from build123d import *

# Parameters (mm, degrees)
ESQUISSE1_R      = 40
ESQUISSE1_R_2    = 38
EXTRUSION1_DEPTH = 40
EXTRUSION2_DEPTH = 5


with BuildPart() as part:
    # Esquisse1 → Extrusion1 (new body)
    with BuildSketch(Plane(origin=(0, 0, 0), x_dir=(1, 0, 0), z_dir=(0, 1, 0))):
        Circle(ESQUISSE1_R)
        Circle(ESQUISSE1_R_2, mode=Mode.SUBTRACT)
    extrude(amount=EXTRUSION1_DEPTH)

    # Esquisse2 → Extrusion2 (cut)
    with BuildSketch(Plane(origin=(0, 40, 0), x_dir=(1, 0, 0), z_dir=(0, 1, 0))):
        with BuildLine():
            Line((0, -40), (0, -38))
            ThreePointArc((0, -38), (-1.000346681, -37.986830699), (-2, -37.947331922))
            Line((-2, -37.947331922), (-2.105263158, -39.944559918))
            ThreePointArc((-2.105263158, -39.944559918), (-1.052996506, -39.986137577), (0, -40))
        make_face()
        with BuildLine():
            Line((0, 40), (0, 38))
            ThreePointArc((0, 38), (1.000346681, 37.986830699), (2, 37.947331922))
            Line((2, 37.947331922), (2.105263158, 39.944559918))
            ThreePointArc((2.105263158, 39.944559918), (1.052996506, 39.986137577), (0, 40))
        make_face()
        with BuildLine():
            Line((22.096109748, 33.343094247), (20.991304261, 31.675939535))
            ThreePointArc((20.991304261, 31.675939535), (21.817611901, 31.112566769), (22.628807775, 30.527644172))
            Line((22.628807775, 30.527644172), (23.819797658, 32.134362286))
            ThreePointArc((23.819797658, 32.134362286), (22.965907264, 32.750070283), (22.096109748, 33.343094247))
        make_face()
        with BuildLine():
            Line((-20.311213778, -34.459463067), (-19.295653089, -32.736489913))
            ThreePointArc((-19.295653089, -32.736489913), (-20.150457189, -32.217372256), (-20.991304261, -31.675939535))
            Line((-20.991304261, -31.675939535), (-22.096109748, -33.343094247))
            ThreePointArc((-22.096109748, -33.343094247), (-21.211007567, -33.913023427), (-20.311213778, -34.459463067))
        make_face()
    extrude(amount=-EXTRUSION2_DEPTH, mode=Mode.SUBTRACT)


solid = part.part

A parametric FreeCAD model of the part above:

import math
import FreeCAD as App
import Part
import Sketcher

V = App.Vector
Q = App.Units.Quantity

doc = App.newDocument("Part")
params = doc.addObject("Spreadsheet::Sheet", "Params")
for row, (alias, value) in enumerate([
    ("sketch1_diameter", "80 mm"),
    ("sketch1_diameter2", "76 mm"),
    ("pad1_length", "40 mm"),
    ("sketch2_radius", "37.999999 mm"),
    ("sketch2_radius2", "40.000001 mm"),
    ("pocket1_length", "5 mm"),
], start=1):
    params.set(f"A{row}", alias)
    params.set(f"B{row}", "=" + value)
    params.setAlias(f"B{row}", alias)

body = doc.addObject("PartDesign::Body", "Body")

sketch1 = doc.addObject("Sketcher::SketchObject", "Sketch")
body.addObject(sketch1)
sketch1.AttachmentSupport = (doc.XZ_Plane, [""])
sketch1.MapMode = "FlatFace"
sketch1.addGeometry([
    Part.Circle(V(0, 0, 0), V(0, 0, 1), 40),
    Part.Circle(V(0, 0, 0), V(0, 0, 1), 38),
], False)
sketch1.addConstraint([
    Sketcher.Constraint("Coincident", 0, 3, -1, 1),
    Sketcher.Constraint("Coincident", 1, 3, -1, 1),
    Sketcher.Constraint("Diameter", 0, Q("80 mm")),
    Sketcher.Constraint("Diameter", 1, Q("76 mm")),
])
sketch1.setExpression("Constraints[2]", "Params.sketch1_diameter")
sketch1.setExpression("Constraints[3]", "Params.sketch1_diameter2")
pad1 = doc.addObject("PartDesign::Pad", "Pad")
body.addObject(pad1)
pad1.Profile = sketch1
pad1.setExpression("Length", "Params.pad1_length")
pad1.Reversed = True

sketch2 = doc.addObject("Sketcher::SketchObject", "Sketch001")
body.addObject(sketch2)
sketch2.AttachmentSupport = (doc.XZ_Plane, [""])
sketch2.MapMode = "FlatFace"
sketch2.AttachmentOffset = App.Placement(V(0, 0, -40), App.Rotation())
sketch2.addGeometry([
    Part.LineSegment(V(0, 40, 0), V(0, 38, 0)),
    Part.ArcOfCircle(Part.Circle(V(0, 0, 0), V(0, 0, 1), 38), math.radians(90), math.radians(93.02)),
    Part.LineSegment(V(-2, 37.9, 0), V(-2.1, 39.9, 0)),
    Part.ArcOfCircle(Part.Circle(V(0, 0, 0), V(0, 0, 1), 40), math.radians(90), math.radians(93.02)),
    Part.LineSegment(V(0, -40, 0), V(0, -38, 0)),
    Part.ArcOfCircle(Part.Circle(V(0, 0, 0), V(0, 0, 1), 38), math.radians(-90), math.radians(-86.98)),
    Part.LineSegment(V(2, -37.9, 0), V(2.1, -39.9, 0)),
    Part.ArcOfCircle(Part.Circle(V(0, 0, 0), V(0, 0, 1), 40), math.radians(-90), math.radians(-86.98)),
    Part.LineSegment(V(22.1, -33.3, 0), V(21, -31.7, 0)),
    Part.ArcOfCircle(Part.Circle(V(0, 0, 0), V(0, 0, 1), 38), math.radians(-56.47), math.radians(-53.45)),
    Part.LineSegment(V(22.6, -30.5, 0), V(23.8, -32.1, 0)),
    Part.ArcOfCircle(Part.Circle(V(0, 0, 0), V(0, 0, 1), 40), math.radians(-56.47), math.radians(-53.45)),
    Part.LineSegment(V(-20.3, 34.5, 0), V(-19.3, 32.7, 0)),
    Part.ArcOfCircle(Part.Circle(V(0, 0, 0), V(0, 0, 1), 38), math.radians(120.52), math.radians(123.53)),
    Part.LineSegment(V(-21, 31.7, 0), V(-22.1, 33.3, 0)),
    Part.ArcOfCircle(Part.Circle(V(0, 0, 0), V(0, 0, 1), 40), math.radians(120.52), math.radians(123.53)),
], False)
sketch2.addConstraint([
    Sketcher.Constraint("Coincident", 0, 2, 1, 1),
    Sketcher.Constraint("Coincident", 1, 2, 2, 1),
    Sketcher.Constraint("Coincident", 2, 2, 3, 2),
    Sketcher.Constraint("Coincident", 3, 1, 0, 1),
    Sketcher.Constraint("Coincident", 4, 2, 5, 1),
    Sketcher.Constraint("Coincident", 5, 2, 6, 1),
    Sketcher.Constraint("Coincident", 6, 2, 7, 2),
    Sketcher.Constraint("Coincident", 7, 1, 4, 1),
    Sketcher.Constraint("Coincident", 8, 2, 9, 1),
    Sketcher.Constraint("Coincident", 9, 2, 10, 1),
    Sketcher.Constraint("Coincident", 10, 2, 11, 2),
    Sketcher.Constraint("Coincident", 11, 1, 8, 1),
    Sketcher.Constraint("Coincident", 12, 2, 13, 1),
    Sketcher.Constraint("Coincident", 13, 2, 14, 1),
    Sketcher.Constraint("Coincident", 14, 2, 15, 2),
    Sketcher.Constraint("Coincident", 15, 1, 12, 1),
    Sketcher.Constraint("Vertical", 0),
    Sketcher.Constraint("Vertical", 4),
    Sketcher.Constraint("Coincident", 1, 3, -1, 1),
    Sketcher.Constraint("Coincident", 3, 3, -1, 1),
    Sketcher.Constraint("Coincident", 5, 3, -1, 1),
    Sketcher.Constraint("Coincident", 7, 3, -1, 1),
    Sketcher.Constraint("Coincident", 9, 3, -1, 1),
    Sketcher.Constraint("Coincident", 11, 3, -1, 1),
    Sketcher.Constraint("Coincident", 13, 3, -1, 1),
    Sketcher.Constraint("Coincident", 15, 3, -1, 1),
    Sketcher.Constraint("Equal", 1, 5),
    Sketcher.Constraint("Equal", 3, 7),
    Sketcher.Constraint("Equal", 5, 9),
    Sketcher.Constraint("Equal", 9, 13),
    Sketcher.Constraint("Equal", 11, 15),
    Sketcher.Constraint("PointOnObject", 0, 2, -2),
    Sketcher.Constraint("PointOnObject", 4, 2, -2),
    Sketcher.Constraint("Parallel", 2, 6),
    Sketcher.Constraint("Parallel", 8, 14),
    Sketcher.Constraint("Equal", 6, 8),
    Sketcher.Constraint("Radius", 1, Q("37.999999 mm")),
    Sketcher.Constraint("Radius", 3, Q("40.000001 mm")),
    Sketcher.Constraint("DistanceX", 1, 2, -1, 1, Q("2 mm")),
    Sketcher.Constraint("DistanceX", -1, 1, 5, 2, Q("2 mm")),
    Sketcher.Constraint("DistanceX", 11, 1, 9, 2, Q("0.532698 mm")),
    Sketcher.Constraint("DistanceY", -1, 1, 2, 2, Q("39.94456 mm")),
    Sketcher.Constraint("DistanceY", 8, 2, -1, 1, Q("31.67594 mm")),
    Sketcher.Constraint("DistanceX", -1, 1, 11, 1, Q("22.09611 mm")),
    Sketcher.Constraint("DistanceY", -1, 1, 12, 2, Q("32.73649 mm")),
    Sketcher.Constraint("DistanceY", -1, 1, 13, 2, Q("31.67594 mm")),
    Sketcher.Constraint("DistanceX", 9, 2, 10, 2, Q("1.19099 mm")),
    Sketcher.Constraint("DistanceX", 15, 1, 12, 2, Q("1.015561 mm")),
])
sketch2.setExpression("Constraints[36]", "Params.sketch2_radius")
sketch2.setExpression("Constraints[37]", "Params.sketch2_radius2")
pocket1 = doc.addObject("PartDesign::Pocket", "Pocket")
body.addObject(pocket1)
pocket1.Profile = sketch2
pocket1.setExpression("Length", "Params.pocket1_length")
pocket1.Reversed = True

doc.recompute()
